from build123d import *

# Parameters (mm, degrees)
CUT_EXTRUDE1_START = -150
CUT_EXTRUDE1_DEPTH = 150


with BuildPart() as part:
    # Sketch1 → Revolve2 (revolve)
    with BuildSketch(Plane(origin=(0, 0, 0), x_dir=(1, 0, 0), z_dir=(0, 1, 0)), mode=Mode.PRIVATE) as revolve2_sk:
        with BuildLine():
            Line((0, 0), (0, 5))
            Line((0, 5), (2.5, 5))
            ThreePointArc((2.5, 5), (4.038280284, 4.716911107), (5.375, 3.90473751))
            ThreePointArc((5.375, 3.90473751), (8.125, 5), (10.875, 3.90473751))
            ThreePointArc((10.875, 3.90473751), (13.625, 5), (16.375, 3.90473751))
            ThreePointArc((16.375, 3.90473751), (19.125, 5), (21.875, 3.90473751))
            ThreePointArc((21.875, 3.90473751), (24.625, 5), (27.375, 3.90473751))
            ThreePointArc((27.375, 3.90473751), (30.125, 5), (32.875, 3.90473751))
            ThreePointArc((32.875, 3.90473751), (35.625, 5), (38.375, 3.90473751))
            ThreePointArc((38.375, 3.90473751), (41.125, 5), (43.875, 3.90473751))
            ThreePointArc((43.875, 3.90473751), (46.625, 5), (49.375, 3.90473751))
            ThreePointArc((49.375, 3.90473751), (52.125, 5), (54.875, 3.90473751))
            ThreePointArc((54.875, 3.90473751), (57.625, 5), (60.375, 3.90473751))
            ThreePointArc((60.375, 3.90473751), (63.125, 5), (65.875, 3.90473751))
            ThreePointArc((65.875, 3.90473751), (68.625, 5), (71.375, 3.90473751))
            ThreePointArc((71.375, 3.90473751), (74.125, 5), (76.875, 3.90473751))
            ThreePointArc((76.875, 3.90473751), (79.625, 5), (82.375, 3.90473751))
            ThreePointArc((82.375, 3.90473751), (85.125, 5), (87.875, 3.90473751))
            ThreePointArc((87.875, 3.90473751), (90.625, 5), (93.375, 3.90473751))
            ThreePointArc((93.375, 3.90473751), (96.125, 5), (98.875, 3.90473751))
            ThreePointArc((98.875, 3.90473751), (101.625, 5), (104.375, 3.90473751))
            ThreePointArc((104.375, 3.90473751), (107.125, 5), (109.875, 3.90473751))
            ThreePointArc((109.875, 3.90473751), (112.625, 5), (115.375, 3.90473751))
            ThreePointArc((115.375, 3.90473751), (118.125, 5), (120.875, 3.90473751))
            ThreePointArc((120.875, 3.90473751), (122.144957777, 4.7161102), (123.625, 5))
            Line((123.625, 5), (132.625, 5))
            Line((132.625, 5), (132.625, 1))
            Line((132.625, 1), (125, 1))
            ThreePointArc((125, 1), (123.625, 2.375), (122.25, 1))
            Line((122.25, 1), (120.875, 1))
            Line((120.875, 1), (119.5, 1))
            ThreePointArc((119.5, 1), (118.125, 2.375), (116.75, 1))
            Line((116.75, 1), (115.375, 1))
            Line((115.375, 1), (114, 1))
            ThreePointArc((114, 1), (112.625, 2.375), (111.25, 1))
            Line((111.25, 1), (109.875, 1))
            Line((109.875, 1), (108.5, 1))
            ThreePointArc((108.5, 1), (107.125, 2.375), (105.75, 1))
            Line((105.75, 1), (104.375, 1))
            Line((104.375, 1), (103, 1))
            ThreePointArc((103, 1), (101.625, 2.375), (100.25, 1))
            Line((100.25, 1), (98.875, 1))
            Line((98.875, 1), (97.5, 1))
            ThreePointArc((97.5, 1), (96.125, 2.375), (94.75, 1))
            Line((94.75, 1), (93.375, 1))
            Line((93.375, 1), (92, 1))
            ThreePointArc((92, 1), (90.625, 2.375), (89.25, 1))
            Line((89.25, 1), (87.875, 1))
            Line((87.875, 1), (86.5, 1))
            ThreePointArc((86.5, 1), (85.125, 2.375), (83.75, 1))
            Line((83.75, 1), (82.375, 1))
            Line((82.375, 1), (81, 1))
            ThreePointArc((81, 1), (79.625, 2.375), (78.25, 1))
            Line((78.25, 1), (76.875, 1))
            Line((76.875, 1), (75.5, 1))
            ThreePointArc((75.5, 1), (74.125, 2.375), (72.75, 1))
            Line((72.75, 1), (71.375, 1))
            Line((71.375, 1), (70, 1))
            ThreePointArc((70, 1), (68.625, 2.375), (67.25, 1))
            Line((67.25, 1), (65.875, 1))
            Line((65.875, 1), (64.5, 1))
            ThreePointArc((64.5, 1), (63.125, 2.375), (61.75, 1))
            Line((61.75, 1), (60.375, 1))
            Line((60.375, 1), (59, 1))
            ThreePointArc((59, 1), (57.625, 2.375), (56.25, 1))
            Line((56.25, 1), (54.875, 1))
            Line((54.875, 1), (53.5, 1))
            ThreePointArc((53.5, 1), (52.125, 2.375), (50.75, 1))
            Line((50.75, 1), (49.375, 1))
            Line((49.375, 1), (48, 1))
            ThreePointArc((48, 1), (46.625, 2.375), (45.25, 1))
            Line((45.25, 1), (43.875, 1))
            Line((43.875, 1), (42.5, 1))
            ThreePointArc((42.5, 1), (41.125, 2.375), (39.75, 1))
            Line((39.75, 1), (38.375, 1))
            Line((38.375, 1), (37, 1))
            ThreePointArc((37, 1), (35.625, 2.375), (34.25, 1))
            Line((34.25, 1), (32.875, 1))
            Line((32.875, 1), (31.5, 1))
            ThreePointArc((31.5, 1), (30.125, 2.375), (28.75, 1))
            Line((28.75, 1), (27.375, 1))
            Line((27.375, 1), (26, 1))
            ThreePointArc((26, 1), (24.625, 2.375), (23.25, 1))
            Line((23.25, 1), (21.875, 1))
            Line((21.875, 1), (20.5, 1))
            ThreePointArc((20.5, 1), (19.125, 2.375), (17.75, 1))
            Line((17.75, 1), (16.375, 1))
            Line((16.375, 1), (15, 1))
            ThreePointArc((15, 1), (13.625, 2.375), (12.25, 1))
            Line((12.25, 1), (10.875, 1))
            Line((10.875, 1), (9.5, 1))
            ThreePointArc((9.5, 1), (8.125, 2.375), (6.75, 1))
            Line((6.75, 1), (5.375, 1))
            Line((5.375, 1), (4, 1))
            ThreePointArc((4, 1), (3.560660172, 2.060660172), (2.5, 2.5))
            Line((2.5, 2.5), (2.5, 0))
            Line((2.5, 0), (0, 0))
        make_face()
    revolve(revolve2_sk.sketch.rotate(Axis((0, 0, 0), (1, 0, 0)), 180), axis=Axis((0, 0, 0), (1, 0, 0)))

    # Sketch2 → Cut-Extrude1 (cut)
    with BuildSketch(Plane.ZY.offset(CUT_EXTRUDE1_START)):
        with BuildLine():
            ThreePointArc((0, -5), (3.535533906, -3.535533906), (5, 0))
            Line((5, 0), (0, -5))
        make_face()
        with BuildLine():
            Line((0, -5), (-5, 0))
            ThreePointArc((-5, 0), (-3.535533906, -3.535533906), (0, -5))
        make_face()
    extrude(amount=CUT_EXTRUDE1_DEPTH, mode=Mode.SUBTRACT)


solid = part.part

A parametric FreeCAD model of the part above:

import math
import FreeCAD as App
import Part
import Sketcher
from FreeCAD import Vector
Q = App.Units.Quantity

doc = App.newDocument("Part")
body = doc.addObject("PartDesign::Body", "Body")

# Sketch on XZ plane
sketch1 = body.newObject("Sketcher::SketchObject", "Sketch")
sketch1.AttachmentSupport = (doc.getObject("XZ_Plane"), [""])
sketch1.MapMode = "FlatFace"
sketch1.addGeometry(Part.LineSegment(Vector(0, -5, 0), Vector(0, 0, 0)), False)
sketch1.addGeometry(Part.LineSegment(Vector(0, 0, 0), Vector(2.5, 0, 0)), False)
sketch1.addGeometry(Part.LineSegment(Vector(2.5, 0, 0), Vector(2.5, -2.5, 0)), False)
sketch1.addGeometry(Part.ArcOfCircle(Part.Circle(Vector(2.5, -1, 0), Vector(0, 0, 1), 1.5), math.radians(-90), math.radians(0)), False)
sketch1.addGeometry(Part.LineSegment(Vector(4, -1, 0), Vector(6.75, -1, 0)), False)
sketch1.addGeometry(Part.ArcOfCircle(Part.Circle(Vector(8.125, -1, 0), Vector(0, 0, 1), 1.375), math.radians(180), math.radians(360)), False)
sketch1.addGeometry(Part.LineSegment(Vector(9.5, -1, 0), Vector(12.25, -1, 0)), False)
sketch1.addGeometry(Part.ArcOfCircle(Part.Circle(Vector(13.625, -1, 0), Vector(0, 0, 1), 1.375), math.radians(180), math.radians(360)), False)
sketch1.addGeometry(Part.LineSegment(Vector(15, -1, 0), Vector(17.75, -1, 0)), False)
sketch1.addGeometry(Part.ArcOfCircle(Part.Circle(Vector(19.125, -1, 0), Vector(0, 0, 1), 1.375), math.radians(180), math.radians(360)), False)
sketch1.addGeometry(Part.LineSegment(Vector(20.5, -1, 0), Vector(23.25, -1, 0)), False)
sketch1.addGeometry(Part.ArcOfCircle(Part.Circle(Vector(24.625, -1, 0), Vector(0, 0, 1), 1.375), math.radians(180), math.radians(360)), False)
sketch1.addGeometry(Part.LineSegment(Vector(26, -1, 0), Vector(28.75, -1, 0)), False)
sketch1.addGeometry(Part.ArcOfCircle(Part.Circle(Vector(30.125, -1, 0), Vector(0, 0, 1), 1.375), math.radians(180), math.radians(360)), False)
sketch1.addGeometry(Part.LineSegment(Vector(31.5, -1, 0), Vector(34.25, -1, 0)), False)
sketch1.addGeometry(Part.ArcOfCircle(Part.Circle(Vector(35.625, -1, 0), Vector(0, 0, 1), 1.375), math.radians(180), math.radians(360)), False)
sketch1.addGeometry(Part.LineSegment(Vector(37, -1, 0), Vector(39.75, -1, 0)), False)
sketch1.addGeometry(Part.ArcOfCircle(Part.Circle(Vector(41.125, -1, 0), Vector(0, 0, 1), 1.375), math.radians(180), math.radians(360)), False)
sketch1.addGeometry(Part.LineSegment(Vector(42.5, -1, 0), Vector(45.25, -1, 0)), False)
sketch1.addGeometry(Part.ArcOfCircle(Part.Circle(Vector(46.625, -1, 0), Vector(0, 0, 1), 1.375), math.radians(180), math.radians(360)), False)
sketch1.addGeometry(Part.LineSegment(Vector(48, -1, 0), Vector(50.75, -1, 0)), False)
sketch1.addGeometry(Part.ArcOfCircle(Part.Circle(Vector(52.125, -1, 0), Vector(0, 0, 1), 1.375), math.radians(180), math.radians(360)), False)
sketch1.addGeometry(Part.LineSegment(Vector(53.5, -1, 0), Vector(56.25, -1, 0)), False)
sketch1.addGeometry(Part.ArcOfCircle(Part.Circle(Vector(57.625, -1, 0), Vector(0, 0, 1), 1.375), math.radians(180), math.radians(360)), False)
sketch1.addGeometry(Part.LineSegment(Vector(59, -1, 0), Vector(61.75, -1, 0)), False)
sketch1.addGeometry(Part.ArcOfCircle(Part.Circle(Vector(63.125, -1, 0), Vector(0, 0, 1), 1.375), math.radians(180), math.radians(360)), False)
sketch1.addGeometry(Part.LineSegment(Vector(64.5, -1, 0), Vector(67.25, -1, 0)), False)
sketch1.addGeometry(Part.ArcOfCircle(Part.Circle(Vector(68.625, -1, 0), Vector(0, 0, 1), 1.375), math.radians(180), math.radians(360)), False)
sketch1.addGeometry(Part.LineSegment(Vector(70, -1, 0), Vector(72.75, -1, 0)), False)
sketch1.addGeometry(Part.ArcOfCircle(Part.Circle(Vector(74.125, -1, 0), Vector(0, 0, 1), 1.375), math.radians(180), math.radians(360)), False)
sketch1.addGeometry(Part.LineSegment(Vector(75.5, -1, 0), Vector(78.25, -1, 0)), False)
sketch1.addGeometry(Part.ArcOfCircle(Part.Circle(Vector(79.625, -1, 0), Vector(0, 0, 1), 1.375), math.radians(180), math.radians(360)), False)
sketch1.addGeometry(Part.LineSegment(Vector(81, -1, 0), Vector(83.75, -1, 0)), False)
sketch1.addGeometry(Part.ArcOfCircle(Part.Circle(Vector(85.125, -1, 0), Vector(0, 0, 1), 1.375), math.radians(180), math.radians(360)), False)
sketch1.addGeometry(Part.LineSegment(Vector(86.5, -1, 0), Vector(89.25, -1, 0)), False)
sketch1.addGeometry(Part.ArcOfCircle(Part.Circle(Vector(90.625, -1, 0), Vector(0, 0, 1), 1.375), math.radians(180), math.radians(360)), False)
sketch1.addGeometry(Part.LineSegment(Vector(92, -1, 0), Vector(94.75, -1, 0)), False)
sketch1.addGeometry(Part.ArcOfCircle(Part.Circle(Vector(96.125, -1, 0), Vector(0, 0, 1), 1.375), math.radians(180), math.radians(360)), False)
sketch1.addGeometry(Part.LineSegment(Vector(97.5, -1, 0), Vector(100.25, -1, 0)), False)
sketch1.addGeometry(Part.ArcOfCircle(Part.Circle(Vector(101.625, -1, 0), Vector(0, 0, 1), 1.375), math.radians(180), math.radians(360)), False)
sketch1.addGeometry(Part.LineSegment(Vector(103, -1, 0), Vector(105.75, -1, 0)), False)
sketch1.addGeometry(Part.ArcOfCircle(Part.Circle(Vector(107.125, -1, 0), Vector(0, 0, 1), 1.375), math.radians(180), math.radians(360)), False)
sketch1.addGeometry(Part.LineSegment(Vector(108.5, -1, 0), Vector(111.25, -1, 0)), False)
sketch1.addGeometry(Part.ArcOfCircle(Part.Circle(Vector(112.625, -1, 0), Vector(0, 0, 1), 1.375), math.radians(180), math.radians(360)), False)
sketch1.addGeometry(Part.LineSegment(Vector(114, -1, 0), Vector(116.75, -1, 0)), False)
sketch1.addGeometry(Part.ArcOfCircle(Part.Circle(Vector(118.125, -1, 0), Vector(0, 0, 1), 1.375), math.radians(180), math.radians(360)), False)
sketch1.addGeometry(Part.LineSegment(Vector(119.5, -1, 0), Vector(122.25, -1, 0)), False)
sketch1.addGeometry(Part.ArcOfCircle(Part.Circle(Vector(123.625, -1, 0), Vector(0, 0, 1), 1.375), math.radians(180), math.radians(360)), False)
sketch1.addGeometry(Part.LineSegment(Vector(125, -1, 0), Vector(132.625, -1, 0)), False)
sketch1.addGeometry(Part.LineSegment(Vector(132.625, -1, 0), Vector(132.625, -5, 0)), False)
sketch1.addGeometry(Part.LineSegment(Vector(132.625, -5, 0), Vector(123.625, -5, 0)), False)
sketch1.addGeometry(Part.ArcOfCircle(Part.Circle(Vector(123.625, -1, 0), Vector(0, 0, 1), 4), math.radians(-133.432537), math.radians(-90)), False)
sketch1.addGeometry(Part.ArcOfCircle(Part.Circle(Vector(118.125, -1, 0), Vector(0, 0, 1), 4), math.radians(-133.432537), math.radians(-46.567463)), False)
sketch1.addGeometry(Part.ArcOfCircle(Part.Circle(Vector(112.625, -1, 0), Vector(0, 0, 1), 4), math.radians(-133.432537), math.radians(-46.567463)), False)
sketch1.addGeometry(Part.ArcOfCircle(Part.Circle(Vector(107.125, -1, 0), Vector(0, 0, 1), 4), math.radians(-133.432537), math.radians(-46.567463)), False)
sketch1.addGeometry(Part.ArcOfCircle(Part.Circle(Vector(101.625, -1, 0), Vector(0, 0, 1), 4), math.radians(-133.432537), math.radians(-46.567463)), False)
sketch1.addGeometry(Part.ArcOfCircle(Part.Circle(Vector(96.125, -1, 0), Vector(0, 0, 1), 4), math.radians(-133.432537), math.radians(-46.567463)), False)
sketch1.addGeometry(Part.ArcOfCircle(Part.Circle(Vector(90.625, -1, 0), Vector(0, 0, 1), 4), math.radians(-133.432537), math.radians(-46.567463)), False)
sketch1.addGeometry(Part.ArcOfCircle(Part.Circle(Vector(85.125, -1, 0), Vector(0, 0, 1), 4), math.radians(-133.432537), math.radians(-46.567463)), False)
sketch1.addGeometry(Part.ArcOfCircle(Part.Circle(Vector(79.625, -1, 0), Vector(0, 0, 1), 4), math.radians(-133.432537), math.radians(-46.567463)), False)
sketch1.addGeometry(Part.ArcOfCircle(Part.Circle(Vector(74.125, -1, 0), Vector(0, 0, 1), 4), math.radians(-133.432537), math.radians(-46.567463)), False)
sketch1.addGeometry(Part.ArcOfCircle(Part.Circle(Vector(68.625, -1, 0), Vector(0, 0, 1), 4), math.radians(-133.432537), math.radians(-46.567463)), False)
sketch1.addGeometry(Part.ArcOfCircle(Part.Circle(Vector(63.125, -1, 0), Vector(0, 0, 1), 4), math.radians(-133.432537), math.radians(-46.567463)), False)
sketch1.addGeometry(Part.ArcOfCircle(Part.Circle(Vector(57.625, -1, 0), Vector(0, 0, 1), 4), math.radians(-133.432537), math.radians(-46.567463)), False)
sketch1.addGeometry(Part.ArcOfCircle(Part.Circle(Vector(52.125, -1, 0), Vector(0, 0, 1), 4), math.radians(-133.432537), math.radians(-46.567463)), False)
sketch1.addGeometry(Part.ArcOfCircle(Part.Circle(Vector(46.625, -1, 0), Vector(0, 0, 1), 4), math.radians(-133.432537), math.radians(-46.567463)), False)
sketch1.addGeometry(Part.ArcOfCircle(Part.Circle(Vector(41.125, -1, 0), Vector(0, 0, 1), 4), math.radians(-133.432537), math.radians(-46.567463)), False)
sketch1.addGeometry(Part.ArcOfCircle(Part.Circle(Vector(35.625, -1, 0), Vector(0, 0, 1), 4), math.radians(-133.432537), math.radians(-46.567463)), False)
sketch1.addGeometry(Part.ArcOfCircle(Part.Circle(Vector(30.125, -1, 0), Vector(0, 0, 1), 4), math.radians(-133.432537), math.radians(-46.567463)), False)
sketch1.addGeometry(Part.ArcOfCircle(Part.Circle(Vector(24.625, -1, 0), Vector(0, 0, 1), 4), math.radians(-133.432537), math.radians(-46.567463)), False)
sketch1.addGeometry(Part.ArcOfCircle(Part.Circle(Vector(19.125, -1, 0), Vector(0, 0, 1), 4), math.radians(-133.432537), math.radians(-46.567463)), False)
sketch1.addGeometry(Part.ArcOfCircle(Part.Circle(Vector(13.625, -1, 0), Vector(0, 0, 1), 4), math.radians(-133.432537), math.radians(-46.567463)), False)
sketch1.addGeometry(Part.ArcOfCircle(Part.Circle(Vector(8.125, -1, 0), Vector(0, 0, 1), 4), math.radians(-133.432537), math.radians(-46.567463)), False)
sketch1.addGeometry(Part.ArcOfCircle(Part.Circle(Vector(2.5, -0.679015, 0), Vector(0, 0, 1), 4.320985), math.radians(-90), math.radians(-48.290235)), False)
sketch1.addGeometry(Part.LineSegment(Vector(2.5, -5, 0), Vector(0, -5, 0)), False)
sketch1.addConstraint(Sketcher.Constraint("Coincident", 0, 2, 1, 1))
sketch1.addConstraint(Sketcher.Constraint("Coincident", 1, 2, 2, 1))
sketch1.addConstraint(Sketcher.Constraint("Coincident", 2, 2, 3, 1))
sketch1.addConstraint(Sketcher.Constraint("Coincident", 3, 2, 4, 1))
sketch1.addConstraint(Sketcher.Constraint("Coincident", 4, 2, 5, 1))
sketch1.addConstraint(Sketcher.Constraint("Coincident", 5, 2, 6, 1))
sketch1.addConstraint(Sketcher.Constraint("Coincident", 6, 2, 7, 1))
sketch1.addConstraint(Sketcher.Constraint("Coincident", 7, 2, 8, 1))
sketch1.addConstraint(Sketcher.Constraint("Coincident", 8, 2, 9, 1))
sketch1.addConstraint(Sketcher.Constraint("Coincident", 9, 2, 10, 1))
sketch1.addConstraint(Sketcher.Constraint("Coincident", 10, 2, 11, 1))
sketch1.addConstraint(Sketcher.Constraint("Coincident", 11, 2, 12, 1))
sketch1.addConstraint(Sketcher.Constraint("Coincident", 12, 2, 13, 1))
sketch1.addConstraint(Sketcher.Constraint("Coincident", 13, 2, 14, 1))
sketch1.addConstraint(Sketcher.Constraint("Coincident", 14, 2, 15, 1))
sketch1.addConstraint(Sketcher.Constraint("Coincident", 15, 2, 16, 1))
sketch1.addConstraint(Sketcher.Constraint("Coincident", 16, 2, 17, 1))
sketch1.addConstraint(Sketcher.Constraint("Coincident", 17, 2, 18, 1))
sketch1.addConstraint(Sketcher.Constraint("Coincident", 18, 2, 19, 1))
sketch1.addConstraint(Sketcher.Constraint("Coincident", 19, 2, 20, 1))
sketch1.addConstraint(Sketcher.Constraint("Coincident", 20, 2, 21, 1))
sketch1.addConstraint(Sketcher.Constraint("Coincident", 21, 2, 22, 1))
sketch1.addConstraint(Sketcher.Constraint("Coincident", 22, 2, 23, 1))
sketch1.addConstraint(Sketcher.Constraint("Coincident", 23, 2, 24, 1))
sketch1.addConstraint(Sketcher.Constraint("Coincident", 24, 2, 25, 1))
sketch1.addConstraint(Sketcher.Constraint("Coincident", 25, 2, 26, 1))
sketch1.addConstraint(Sketcher.Constraint("Coincident", 26, 2, 27, 1))
sketch1.addConstraint(Sketcher.Constraint("Coincident", 27, 2, 28, 1))
sketch1.addConstraint(Sketcher.Constraint("Coincident", 28, 2, 29, 1))
sketch1.addConstraint(Sketcher.Constraint("Coincident", 29, 2, 30, 1))
sketch1.addConstraint(Sketcher.Constraint("Coincident", 30, 2, 31, 1))
sketch1.addConstraint(Sketcher.Constraint("Coincident", 31, 2, 32, 1))
sketch1.addConstraint(Sketcher.Constraint("Coincident", 32, 2, 33, 1))
sketch1.addConstraint(Sketcher.Constraint("Coincident", 33, 2, 34, 1))
sketch1.addConstraint(Sketcher.Constraint("Coincident", 34, 2, 35, 1))
sketch1.addConstraint(Sketcher.Constraint("Coincident", 35, 2, 36, 1))
sketch1.addConstraint(Sketcher.Constraint("Coincident", 36, 2, 37, 1))
sketch1.addConstraint(Sketcher.Constraint("Coincident", 37, 2, 38, 1))
sketch1.addConstraint(Sketcher.Constraint("Coincident", 38, 2, 39, 1))
sketch1.addConstraint(Sketcher.Constraint("Coincident", 39, 2, 40, 1))
sketch1.addConstraint(Sketcher.Constraint("Coincident", 40, 2, 41, 1))
sketch1.addConstraint(Sketcher.Constraint("Coincident", 41, 2, 42, 1))
sketch1.addConstraint(Sketcher.Constraint("Coincident", 42, 2, 43, 1))
sketch1.addConstraint(Sketcher.Constraint("Coincident", 43, 2, 44, 1))
sketch1.addConstraint(Sketcher.Constraint("Coincident", 44, 2, 45, 1))
sketch1.addConstraint(Sketcher.Constraint("Coincident", 45, 2, 46, 1))
sketch1.addConstraint(Sketcher.Constraint("Coincident", 46, 2, 47, 1))
sketch1.addConstraint(Sketcher.Constraint("Coincident", 47, 2, 48, 1))
sketch1.addConstraint(Sketcher.Constraint("Coincident", 48, 2, 49, 1))
sketch1.addConstraint(Sketcher.Constraint("Coincident", 49, 2, 50, 1))
sketch1.addConstraint(Sketcher.Constraint("Tangent", 50, 2, 51, 2))
sketch1.addConstraint(Sketcher.Constraint("Coincident", 51, 1, 52, 2))
sketch1.addConstraint(Sketcher.Constraint("Coincident", 52, 1, 53, 2))
sketch1.addConstraint(Sketcher.Constraint("Coincident", 53, 1, 54, 2))
sketch1.addConstraint(Sketcher.Constraint("Coincident", 54, 1, 55, 2))
sketch1.addConstraint(Sketcher.Constraint("Coincident", 55, 1, 56, 2))
sketch1.addConstraint(Sketcher.Constraint("Coincident", 56, 1, 57, 2))
sketch1.addConstraint(Sketcher.Constraint("Coincident", 57, 1, 58, 2))
sketch1.addConstraint(Sketcher.Constraint("Coincident", 58, 1, 59, 2))
sketch1.addConstraint(Sketcher.Constraint("Coincident", 59, 1, 60, 2))
sketch1.addConstraint(Sketcher.Constraint("Coincident", 60, 1, 61, 2))
sketch1.addConstraint(Sketcher.Constraint("Coincident", 61, 1, 62, 2))
sketch1.addConstraint(Sketcher.Constraint("Coincident", 62, 1, 63, 2))
sketch1.addConstraint(Sketcher.Constraint("Coincident", 63, 1, 64, 2))
sketch1.addConstraint(Sketcher.Constraint("Coincident", 64, 1, 65, 2))
sketch1.addConstraint(Sketcher.Constraint("Coincident", 65, 1, 66, 2))
sketch1.addConstraint(Sketcher.Constraint("Coincident", 66, 1, 67, 2))
sketch1.addConstraint(Sketcher.Constraint("Coincident", 67, 1, 68, 2))
sketch1.addConstraint(Sketcher.Constraint("Coincident", 68, 1, 69, 2))
sketch1.addConstraint(Sketcher.Constraint("Coincident", 69, 1, 70, 2))
sketch1.addConstraint(Sketcher.Constraint("Coincident", 70, 1, 71, 2))
sketch1.addConstraint(Sketcher.Constraint("Coincident", 71, 1, 72, 2))
sketch1.addConstraint(Sketcher.Constraint("Coincident", 72, 1, 73, 2))
sketch1.addConstraint(Sketcher.Constraint("Tangent", 73, 1, 74, 1))
sketch1.addConstraint(Sketcher.Constraint("Coincident", 74, 2, 0, 1))
sketch1.addConstraint(Sketcher.Constraint("Vertical", 0))
sketch1.addConstraint(Sketcher.Constraint("Horizontal", 1))
sketch1.addConstraint(Sketcher.Constraint("Vertical", 2))
sketch1.addConstraint(Sketcher.Constraint("Horizontal", 4))
sketch1.addConstraint(Sketcher.Constraint("Horizontal", 6))
sketch1.addConstraint(Sketcher.Constraint("Horizontal", 8))
sketch1.addConstraint(Sketcher.Constraint("Horizontal", 10))
sketch1.addConstraint(Sketcher.Constraint("Horizontal", 12))
sketch1.addConstraint(Sketcher.Constraint("Horizontal", 14))
sketch1.addConstraint(Sketcher.Constraint("Horizontal", 16))
sketch1.addConstraint(Sketcher.Constraint("Horizontal", 18))
sketch1.addConstraint(Sketcher.Constraint("Horizontal", 20))
sketch1.addConstraint(Sketcher.Constraint("Horizontal", 22))
sketch1.addConstraint(Sketcher.Constraint("Horizontal", 24))
sketch1.addConstraint(Sketcher.Constraint("Horizontal", 26))
sketch1.addConstraint(Sketcher.Constraint("Horizontal", 28))
sketch1.addConstraint(Sketcher.Constraint("Horizontal", 30))
sketch1.addConstraint(Sketcher.Constraint("Horizontal", 32))
sketch1.addConstraint(Sketcher.Constraint("Horizontal", 34))
sketch1.addConstraint(Sketcher.Constraint("Horizontal", 36))
sketch1.addConstraint(Sketcher.Constraint("Horizontal", 38))
sketch1.addConstraint(Sketcher.Constraint("Horizontal", 40))
sketch1.addConstraint(Sketcher.Constraint("Horizontal", 42))
sketch1.addConstraint(Sketcher.Constraint("Horizontal", 44))
sketch1.addConstraint(Sketcher.Constraint("Horizontal", 46))
sketch1.addConstraint(Sketcher.Constraint("Horizontal", 48))
sketch1.addConstraint(Sketcher.Constraint("Vertical", 49))
sketch1.addConstraint(Sketcher.Constraint("Horizontal", 50))
sketch1.addConstraint(Sketcher.Constraint("Horizontal", 74))
sketch1.addConstraint(Sketcher.Constraint("Coincident", 0, 2, -1, 1))
sketch1.addConstraint(Sketcher.Constraint("Coincident", 51, 3, 47, 3))
sketch1.addConstraint(Sketcher.Constraint("Coincident", 52, 3, 45, 3))
sketch1.addConstraint(Sketcher.Constraint("Coincident", 53, 3, 43, 3))
sketch1.addConstraint(Sketcher.Constraint("Coincident", 54, 3, 41, 3))
sketch1.addConstraint(Sketcher.Constraint("Coincident", 55, 3, 39, 3))
sketch1.addConstraint(Sketcher.Constraint("Coincident", 56, 3, 37, 3))
sketch1.addConstraint(Sketcher.Constraint("Coincident", 57, 3, 35, 3))
sketch1.addConstraint(Sketcher.Constraint("Coincident", 58, 3, 33, 3))
sketch1.addConstraint(Sketcher.Constraint("Coincident", 59, 3, 31, 3))
sketch1.addConstraint(Sketcher.Constraint("Coincident", 60, 3, 29, 3))
sketch1.addConstraint(Sketcher.Constraint("Coincident", 61, 3, 27, 3))
sketch1.addConstraint(Sketcher.Constraint("Coincident", 62, 3, 25, 3))
sketch1.addConstraint(Sketcher.Constraint("Coincident", 63, 3, 23, 3))
sketch1.addConstraint(Sketcher.Constraint("Coincident", 64, 3, 21, 3))
sketch1.addConstraint(Sketcher.Constraint("Coincident", 65, 3, 19, 3))
sketch1.addConstraint(Sketcher.Constraint("Coincident", 66, 3, 17, 3))
sketch1.addConstraint(Sketcher.Constraint("Coincident", 67, 3, 15, 3))
sketch1.addConstraint(Sketcher.Constraint("Coincident", 68, 3, 13, 3))
sketch1.addConstraint(Sketcher.Constraint("Coincident", 69, 3, 11, 3))
sketch1.addConstraint(Sketcher.Constraint("Coincident", 70, 3, 9, 3))
sketch1.addConstraint(Sketcher.Constraint("Coincident", 71, 3, 7, 3))
sketch1.addConstraint(Sketcher.Constraint("Coincident", 72, 3, 5, 3))
sketch1.addConstraint(Sketcher.Constraint("Equal", 5, 7))
sketch1.addConstraint(Sketcher.Constraint("Equal", 7, 9))
sketch1.addConstraint(Sketcher.Constraint("Equal", 9, 11))
sketch1.addConstraint(Sketcher.Constraint("Equal", 11, 13))
sketch1.addConstraint(Sketcher.Constraint("Equal", 13, 15))
sketch1.addConstraint(Sketcher.Constraint("Equal", 15, 17))
sketch1.addConstraint(Sketcher.Constraint("Equal", 17, 19))
sketch1.addConstraint(Sketcher.Constraint("Equal", 19, 21))
sketch1.addConstraint(Sketcher.Constraint("Equal", 21, 23))
sketch1.addConstraint(Sketcher.Constraint("Equal", 23, 25))
sketch1.addConstraint(Sketcher.Constraint("Equal", 25, 27))
sketch1.addConstraint(Sketcher.Constraint("Equal", 27, 29))
sketch1.addConstraint(Sketcher.Constraint("Equal", 29, 31))
sketch1.addConstraint(Sketcher.Constraint("Equal", 31, 33))
sketch1.addConstraint(Sketcher.Constraint("Equal", 33, 35))
sketch1.addConstraint(Sketcher.Constraint("Equal", 35, 37))
sketch1.addConstraint(Sketcher.Constraint("Equal", 37, 39))
sketch1.addConstraint(Sketcher.Constraint("Equal", 39, 41))
sketch1.addConstraint(Sketcher.Constraint("Equal", 41, 43))
sketch1.addConstraint(Sketcher.Constraint("Equal", 43, 45))
sketch1.addConstraint(Sketcher.Constraint("Equal", 45, 47))
sketch1.addConstraint(Sketcher.Constraint("Equal", 51, 52))
sketch1.addConstraint(Sketcher.Constraint("Equal", 52, 53))
sketch1.addConstraint(Sketcher.Constraint("Equal", 53, 54))
sketch1.addConstraint(Sketcher.Constraint("Equal", 54, 55))
sketch1.addConstraint(Sketcher.Constraint("Equal", 55, 56))
sketch1.addConstraint(Sketcher.Constraint("Equal", 56, 57))
sketch1.addConstraint(Sketcher.Constraint("Equal", 57, 58))
sketch1.addConstraint(Sketcher.Constraint("Equal", 58, 59))
sketch1.addConstraint(Sketcher.Constraint("Equal", 59, 60))
sketch1.addConstraint(Sketcher.Constraint("Equal", 60, 61))
sketch1.addConstraint(Sketcher.Constraint("Equal", 61, 62))
sketch1.addConstraint(Sketcher.Constraint("Equal", 62, 63))
sketch1.addConstraint(Sketcher.Constraint("Equal", 63, 64))
sketch1.addConstraint(Sketcher.Constraint("Equal", 64, 65))
sketch1.addConstraint(Sketcher.Constraint("Equal", 65, 66))
sketch1.addConstraint(Sketcher.Constraint("Equal", 66, 67))
sketch1.addConstraint(Sketcher.Constraint("Equal", 67, 68))
sketch1.addConstraint(Sketcher.Constraint("Equal", 68, 69))
sketch1.addConstraint(Sketcher.Constraint("Equal", 69, 70))
sketch1.addConstraint(Sketcher.Constraint("Equal", 70, 71))
sketch1.addConstraint(Sketcher.Constraint("Equal", 71, 72))
sketch1.addConstraint(Sketcher.Constraint("Horizontal", 3, 3, 5, 3))
sketch1.addConstraint(Sketcher.Constraint("Horizontal", 5, 3, 7, 3))
sketch1.addConstraint(Sketcher.Constraint("Horizontal", 7, 3, 9, 3))
sketch1.addConstraint(Sketcher.Constraint("Horizontal", 9, 3, 11, 3))
sketch1.addConstraint(Sketcher.Constraint("Horizontal", 11, 3, 13, 3))
sketch1.addConstraint(Sketcher.Constraint("Horizontal", 13, 3, 15, 3))
sketch1.addConstraint(Sketcher.Constraint("Horizontal", 15, 3, 17, 3))
sketch1.addConstraint(Sketcher.Constraint("Horizontal", 17, 3, 19, 3))
sketch1.addConstraint(Sketcher.Constraint("Horizontal", 19, 3, 21, 3))
sketch1.addConstraint(Sketcher.Constraint("Horizontal", 21, 3, 23, 3))
sketch1.addConstraint(Sketcher.Constraint("Horizontal", 23, 3, 25, 3))
sketch1.addConstraint(Sketcher.Constraint("Horizontal", 25, 3, 27, 3))
sketch1.addConstraint(Sketcher.Constraint("Horizontal", 27, 3, 29, 3))
sketch1.addConstraint(Sketcher.Constraint("Horizontal", 29, 3, 31, 3))
sketch1.addConstraint(Sketcher.Constraint("Horizontal", 31, 3, 33, 3))
sketch1.addConstraint(Sketcher.Constraint("Horizontal", 33, 3, 35, 3))
sketch1.addConstraint(Sketcher.Constraint("Horizontal", 35, 3, 37, 3))
sketch1.addConstraint(Sketcher.Constraint("Horizontal", 37, 3, 39, 3))
sketch1.addConstraint(Sketcher.Constraint("Horizontal", 39, 3, 41, 3))
sketch1.addConstraint(Sketcher.Constraint("Horizontal", 41, 3, 43, 3))
sketch1.addConstraint(Sketcher.Constraint("Horizontal", 43, 3, 45, 3))
sketch1.addConstraint(Sketcher.Constraint("Horizontal", 45, 3, 47, 3))
sketch1.addConstraint(Sketcher.Constraint("Horizontal", 72, 3, 3, 2))
sketch1.addConstraint(Sketcher.Constraint("Horizontal", 4, 2, 5, 2))
sketch1.addConstraint(Sketcher.Constraint("Horizontal", 6, 2, 7, 2))
sketch1.addConstraint(Sketcher.Constraint("Horizontal", 8, 2, 9, 2))
sketch1.addConstraint(Sketcher.Constraint("Horizontal", 10, 2, 11, 2))
sketch1.addConstraint(Sketcher.Constraint("Horizontal", 12, 2, 13, 2))
sketch1.addConstraint(Sketcher.Constraint("Horizontal", 14, 2, 15, 2))
sketch1.addConstraint(Sketcher.Constraint("Horizontal", 16, 2, 17, 2))
sketch1.addConstraint(Sketcher.Constraint("Horizontal", 18, 2, 19, 2))
sketch1.addConstraint(Sketcher.Constraint("Horizontal", 20, 2, 21, 2))
sketch1.addConstraint(Sketcher.Constraint("Horizontal", 22, 2, 23, 2))
sketch1.addConstraint(Sketcher.Constraint("Horizontal", 24, 2, 25, 2))
sketch1.addConstraint(Sketcher.Constraint("Horizontal", 26, 2, 27, 2))
sketch1.addConstraint(Sketcher.Constraint("Horizontal", 28, 2, 29, 2))
sketch1.addConstraint(Sketcher.Constraint("Horizontal", 30, 2, 31, 2))
sketch1.addConstraint(Sketcher.Constraint("Horizontal", 32, 2, 33, 2))
sketch1.addConstraint(Sketcher.Constraint("Horizontal", 34, 2, 35, 2))
sketch1.addConstraint(Sketcher.Constraint("Horizontal", 36, 2, 37, 2))
sketch1.addConstraint(Sketcher.Constraint("Horizontal", 38, 2, 39, 2))
sketch1.addConstraint(Sketcher.Constraint("Horizontal", 40, 2, 41, 2))
sketch1.addConstraint(Sketcher.Constraint("Horizontal", 42, 2, 43, 2))
sketch1.addConstraint(Sketcher.Constraint("Horizontal", 44, 2, 45, 2))
sketch1.addConstraint(Sketcher.Constraint("Horizontal", 46, 2, 47, 2))
sketch1.addConstraint(Sketcher.Constraint("Horizontal", 51, 1, 52, 1))
sketch1.addConstraint(Sketcher.Constraint("Horizontal", 52, 1, 53, 1))
sketch1.addConstraint(Sketcher.Constraint("Horizontal", 53, 1, 54, 1))
sketch1.addConstraint(Sketcher.Constraint("Horizontal", 54, 1, 55, 1))
sketch1.addConstraint(Sketcher.Constraint("Horizontal", 55, 1, 56, 1))
sketch1.addConstraint(Sketcher.Constraint("Horizontal", 56, 1, 57, 1))
sketch1.addConstraint(Sketcher.Constraint("Horizontal", 57, 1, 58, 1))
sketch1.addConstraint(Sketcher.Constraint("Horizontal", 58, 1, 59, 1))
sketch1.addConstraint(Sketcher.Constraint("Horizontal", 59, 1, 60, 1))
sketch1.addConstraint(Sketcher.Constraint("Horizontal", 60, 1, 61, 1))
sketch1.addConstraint(Sketcher.Constraint("Horizontal", 61, 1, 62, 1))
sketch1.addConstraint(Sketcher.Constraint("Horizontal", 62, 1, 63, 1))
sketch1.addConstraint(Sketcher.Constraint("Horizontal", 63, 1, 64, 1))
sketch1.addConstraint(Sketcher.Constraint("Horizontal", 64, 1, 65, 1))
sketch1.addConstraint(Sketcher.Constraint("Horizontal", 65, 1, 66, 1))
sketch1.addConstraint(Sketcher.Constraint("Horizontal", 66, 1, 67, 1))
sketch1.addConstraint(Sketcher.Constraint("Horizontal", 67, 1, 68, 1))
sketch1.addConstraint(Sketcher.Constraint("Horizontal", 68, 1, 69, 1))
sketch1.addConstraint(Sketcher.Constraint("Horizontal", 69, 1, 70, 1))
sketch1.addConstraint(Sketcher.Constraint("Horizontal", 70, 1, 71, 1))
sketch1.addConstraint(Sketcher.Constraint("Horizontal", 71, 1, 72, 1))
sketch1.addConstraint(Sketcher.Constraint("Horizontal", 50, 2, 73, 1))
sketch1.addConstraint(Sketcher.Constraint("Vertical", 3, 3, 73, 3))
sketch1.addConstraint(Sketcher.Constraint("Vertical", 73, 3, 1, 2))
sketch1.addConstraint(Sketcher.Constraint("Equal", 4, 6))
sketch1.addConstraint(Sketcher.Constraint("Equal", 74, 2))
sketch1.addConstraint(Sketcher.Constraint("Radius", 51, Q("4 mm")))
sketch1.addConstraint(Sketcher.Constraint("Radius", 3, Q("1.5 mm")))
sketch1.addConstraint(Sketcher.Constraint("DistanceX", 50, 2, 50, 1, Q("9 mm")))
sketch1.addConstraint(Sketcher.Constraint("DistanceY", 0, 1, 0, 2, Q("5 mm")))
sketch1.addConstraint(Sketcher.Constraint("DistanceX", -1, 1, 7, 2, Q("15 mm")))
sketch1.addConstraint(Sketcher.Constraint("Radius", 5, Q("1.375 mm")))
revolution = body.newObject("PartDesign::Revolution", "Revolution")
revolution.Profile = sketch1
revolution.ReferenceAxis = (sketch1, ["H_Axis"])
revolution.Angle = 360

# Sketch on YZ plane
sketch2 = body.newObject("Sketcher::SketchObject", "Sketch001")
sketch2.AttachmentSupport = (doc.getObject("YZ_Plane"), [""])
sketch2.MapMode = "FlatFace"
sketch2.AttachmentOffset = App.Placement(Vector(0, 0, 150), App.Rotation())
sketch2.addGeometry(Part.ArcOfCircle(Part.Circle(Vector(0, 0, 0), Vector(0, 0, 1), 5), math.radians(90), math.radians(180)), False)
sketch2.addGeometry(Part.LineSegment(Vector(0, 5, 0), Vector(-5, 0, 0)), False)
sketch2.addGeometry(Part.LineSegment(Vector(-5, 0, 0), Vector(0, -5, 0)), False)
sketch2.addGeometry(Part.ArcOfCircle(Part.Circle(Vector(0, 0, 0), Vector(0, 0, 1), 5), math.radians(180), math.radians(270)), False)
sketch2.addConstraint(Sketcher.Constraint("Coincident", 0, 1, 1, 1))
sketch2.addConstraint(Sketcher.Constraint("Coincident", 1, 2, 0, 2))
sketch2.addConstraint(Sketcher.Constraint("Coincident", 2, 1, 3, 1))
sketch2.addConstraint(Sketcher.Constraint("Coincident", 3, 2, 2, 2))
sketch2.addConstraint(Sketcher.Constraint("Coincident", 0, 3, -1, 1))
sketch2.addConstraint(Sketcher.Constraint("Coincident", 3, 3, -1, 1))
sketch2.addConstraint(Sketcher.Constraint("Coincident", 2, 1, 1, 2))
sketch2.addConstraint(Sketcher.Constraint("PointOnObject", 0, 1, -2))
sketch2.addConstraint(Sketcher.Constraint("PointOnObject", 1, 2, -1))
sketch2.addConstraint(Sketcher.Constraint("PointOnObject", 3, 2, -2))
sketch2.addConstraint(Sketcher.Constraint("Radius", 0, Q("5 mm")))
pocket1 = body.newObject("PartDesign::Pocket", "Pocket")
pocket1.Profile = sketch2
pocket1.Length = 150

doc.recompute()
